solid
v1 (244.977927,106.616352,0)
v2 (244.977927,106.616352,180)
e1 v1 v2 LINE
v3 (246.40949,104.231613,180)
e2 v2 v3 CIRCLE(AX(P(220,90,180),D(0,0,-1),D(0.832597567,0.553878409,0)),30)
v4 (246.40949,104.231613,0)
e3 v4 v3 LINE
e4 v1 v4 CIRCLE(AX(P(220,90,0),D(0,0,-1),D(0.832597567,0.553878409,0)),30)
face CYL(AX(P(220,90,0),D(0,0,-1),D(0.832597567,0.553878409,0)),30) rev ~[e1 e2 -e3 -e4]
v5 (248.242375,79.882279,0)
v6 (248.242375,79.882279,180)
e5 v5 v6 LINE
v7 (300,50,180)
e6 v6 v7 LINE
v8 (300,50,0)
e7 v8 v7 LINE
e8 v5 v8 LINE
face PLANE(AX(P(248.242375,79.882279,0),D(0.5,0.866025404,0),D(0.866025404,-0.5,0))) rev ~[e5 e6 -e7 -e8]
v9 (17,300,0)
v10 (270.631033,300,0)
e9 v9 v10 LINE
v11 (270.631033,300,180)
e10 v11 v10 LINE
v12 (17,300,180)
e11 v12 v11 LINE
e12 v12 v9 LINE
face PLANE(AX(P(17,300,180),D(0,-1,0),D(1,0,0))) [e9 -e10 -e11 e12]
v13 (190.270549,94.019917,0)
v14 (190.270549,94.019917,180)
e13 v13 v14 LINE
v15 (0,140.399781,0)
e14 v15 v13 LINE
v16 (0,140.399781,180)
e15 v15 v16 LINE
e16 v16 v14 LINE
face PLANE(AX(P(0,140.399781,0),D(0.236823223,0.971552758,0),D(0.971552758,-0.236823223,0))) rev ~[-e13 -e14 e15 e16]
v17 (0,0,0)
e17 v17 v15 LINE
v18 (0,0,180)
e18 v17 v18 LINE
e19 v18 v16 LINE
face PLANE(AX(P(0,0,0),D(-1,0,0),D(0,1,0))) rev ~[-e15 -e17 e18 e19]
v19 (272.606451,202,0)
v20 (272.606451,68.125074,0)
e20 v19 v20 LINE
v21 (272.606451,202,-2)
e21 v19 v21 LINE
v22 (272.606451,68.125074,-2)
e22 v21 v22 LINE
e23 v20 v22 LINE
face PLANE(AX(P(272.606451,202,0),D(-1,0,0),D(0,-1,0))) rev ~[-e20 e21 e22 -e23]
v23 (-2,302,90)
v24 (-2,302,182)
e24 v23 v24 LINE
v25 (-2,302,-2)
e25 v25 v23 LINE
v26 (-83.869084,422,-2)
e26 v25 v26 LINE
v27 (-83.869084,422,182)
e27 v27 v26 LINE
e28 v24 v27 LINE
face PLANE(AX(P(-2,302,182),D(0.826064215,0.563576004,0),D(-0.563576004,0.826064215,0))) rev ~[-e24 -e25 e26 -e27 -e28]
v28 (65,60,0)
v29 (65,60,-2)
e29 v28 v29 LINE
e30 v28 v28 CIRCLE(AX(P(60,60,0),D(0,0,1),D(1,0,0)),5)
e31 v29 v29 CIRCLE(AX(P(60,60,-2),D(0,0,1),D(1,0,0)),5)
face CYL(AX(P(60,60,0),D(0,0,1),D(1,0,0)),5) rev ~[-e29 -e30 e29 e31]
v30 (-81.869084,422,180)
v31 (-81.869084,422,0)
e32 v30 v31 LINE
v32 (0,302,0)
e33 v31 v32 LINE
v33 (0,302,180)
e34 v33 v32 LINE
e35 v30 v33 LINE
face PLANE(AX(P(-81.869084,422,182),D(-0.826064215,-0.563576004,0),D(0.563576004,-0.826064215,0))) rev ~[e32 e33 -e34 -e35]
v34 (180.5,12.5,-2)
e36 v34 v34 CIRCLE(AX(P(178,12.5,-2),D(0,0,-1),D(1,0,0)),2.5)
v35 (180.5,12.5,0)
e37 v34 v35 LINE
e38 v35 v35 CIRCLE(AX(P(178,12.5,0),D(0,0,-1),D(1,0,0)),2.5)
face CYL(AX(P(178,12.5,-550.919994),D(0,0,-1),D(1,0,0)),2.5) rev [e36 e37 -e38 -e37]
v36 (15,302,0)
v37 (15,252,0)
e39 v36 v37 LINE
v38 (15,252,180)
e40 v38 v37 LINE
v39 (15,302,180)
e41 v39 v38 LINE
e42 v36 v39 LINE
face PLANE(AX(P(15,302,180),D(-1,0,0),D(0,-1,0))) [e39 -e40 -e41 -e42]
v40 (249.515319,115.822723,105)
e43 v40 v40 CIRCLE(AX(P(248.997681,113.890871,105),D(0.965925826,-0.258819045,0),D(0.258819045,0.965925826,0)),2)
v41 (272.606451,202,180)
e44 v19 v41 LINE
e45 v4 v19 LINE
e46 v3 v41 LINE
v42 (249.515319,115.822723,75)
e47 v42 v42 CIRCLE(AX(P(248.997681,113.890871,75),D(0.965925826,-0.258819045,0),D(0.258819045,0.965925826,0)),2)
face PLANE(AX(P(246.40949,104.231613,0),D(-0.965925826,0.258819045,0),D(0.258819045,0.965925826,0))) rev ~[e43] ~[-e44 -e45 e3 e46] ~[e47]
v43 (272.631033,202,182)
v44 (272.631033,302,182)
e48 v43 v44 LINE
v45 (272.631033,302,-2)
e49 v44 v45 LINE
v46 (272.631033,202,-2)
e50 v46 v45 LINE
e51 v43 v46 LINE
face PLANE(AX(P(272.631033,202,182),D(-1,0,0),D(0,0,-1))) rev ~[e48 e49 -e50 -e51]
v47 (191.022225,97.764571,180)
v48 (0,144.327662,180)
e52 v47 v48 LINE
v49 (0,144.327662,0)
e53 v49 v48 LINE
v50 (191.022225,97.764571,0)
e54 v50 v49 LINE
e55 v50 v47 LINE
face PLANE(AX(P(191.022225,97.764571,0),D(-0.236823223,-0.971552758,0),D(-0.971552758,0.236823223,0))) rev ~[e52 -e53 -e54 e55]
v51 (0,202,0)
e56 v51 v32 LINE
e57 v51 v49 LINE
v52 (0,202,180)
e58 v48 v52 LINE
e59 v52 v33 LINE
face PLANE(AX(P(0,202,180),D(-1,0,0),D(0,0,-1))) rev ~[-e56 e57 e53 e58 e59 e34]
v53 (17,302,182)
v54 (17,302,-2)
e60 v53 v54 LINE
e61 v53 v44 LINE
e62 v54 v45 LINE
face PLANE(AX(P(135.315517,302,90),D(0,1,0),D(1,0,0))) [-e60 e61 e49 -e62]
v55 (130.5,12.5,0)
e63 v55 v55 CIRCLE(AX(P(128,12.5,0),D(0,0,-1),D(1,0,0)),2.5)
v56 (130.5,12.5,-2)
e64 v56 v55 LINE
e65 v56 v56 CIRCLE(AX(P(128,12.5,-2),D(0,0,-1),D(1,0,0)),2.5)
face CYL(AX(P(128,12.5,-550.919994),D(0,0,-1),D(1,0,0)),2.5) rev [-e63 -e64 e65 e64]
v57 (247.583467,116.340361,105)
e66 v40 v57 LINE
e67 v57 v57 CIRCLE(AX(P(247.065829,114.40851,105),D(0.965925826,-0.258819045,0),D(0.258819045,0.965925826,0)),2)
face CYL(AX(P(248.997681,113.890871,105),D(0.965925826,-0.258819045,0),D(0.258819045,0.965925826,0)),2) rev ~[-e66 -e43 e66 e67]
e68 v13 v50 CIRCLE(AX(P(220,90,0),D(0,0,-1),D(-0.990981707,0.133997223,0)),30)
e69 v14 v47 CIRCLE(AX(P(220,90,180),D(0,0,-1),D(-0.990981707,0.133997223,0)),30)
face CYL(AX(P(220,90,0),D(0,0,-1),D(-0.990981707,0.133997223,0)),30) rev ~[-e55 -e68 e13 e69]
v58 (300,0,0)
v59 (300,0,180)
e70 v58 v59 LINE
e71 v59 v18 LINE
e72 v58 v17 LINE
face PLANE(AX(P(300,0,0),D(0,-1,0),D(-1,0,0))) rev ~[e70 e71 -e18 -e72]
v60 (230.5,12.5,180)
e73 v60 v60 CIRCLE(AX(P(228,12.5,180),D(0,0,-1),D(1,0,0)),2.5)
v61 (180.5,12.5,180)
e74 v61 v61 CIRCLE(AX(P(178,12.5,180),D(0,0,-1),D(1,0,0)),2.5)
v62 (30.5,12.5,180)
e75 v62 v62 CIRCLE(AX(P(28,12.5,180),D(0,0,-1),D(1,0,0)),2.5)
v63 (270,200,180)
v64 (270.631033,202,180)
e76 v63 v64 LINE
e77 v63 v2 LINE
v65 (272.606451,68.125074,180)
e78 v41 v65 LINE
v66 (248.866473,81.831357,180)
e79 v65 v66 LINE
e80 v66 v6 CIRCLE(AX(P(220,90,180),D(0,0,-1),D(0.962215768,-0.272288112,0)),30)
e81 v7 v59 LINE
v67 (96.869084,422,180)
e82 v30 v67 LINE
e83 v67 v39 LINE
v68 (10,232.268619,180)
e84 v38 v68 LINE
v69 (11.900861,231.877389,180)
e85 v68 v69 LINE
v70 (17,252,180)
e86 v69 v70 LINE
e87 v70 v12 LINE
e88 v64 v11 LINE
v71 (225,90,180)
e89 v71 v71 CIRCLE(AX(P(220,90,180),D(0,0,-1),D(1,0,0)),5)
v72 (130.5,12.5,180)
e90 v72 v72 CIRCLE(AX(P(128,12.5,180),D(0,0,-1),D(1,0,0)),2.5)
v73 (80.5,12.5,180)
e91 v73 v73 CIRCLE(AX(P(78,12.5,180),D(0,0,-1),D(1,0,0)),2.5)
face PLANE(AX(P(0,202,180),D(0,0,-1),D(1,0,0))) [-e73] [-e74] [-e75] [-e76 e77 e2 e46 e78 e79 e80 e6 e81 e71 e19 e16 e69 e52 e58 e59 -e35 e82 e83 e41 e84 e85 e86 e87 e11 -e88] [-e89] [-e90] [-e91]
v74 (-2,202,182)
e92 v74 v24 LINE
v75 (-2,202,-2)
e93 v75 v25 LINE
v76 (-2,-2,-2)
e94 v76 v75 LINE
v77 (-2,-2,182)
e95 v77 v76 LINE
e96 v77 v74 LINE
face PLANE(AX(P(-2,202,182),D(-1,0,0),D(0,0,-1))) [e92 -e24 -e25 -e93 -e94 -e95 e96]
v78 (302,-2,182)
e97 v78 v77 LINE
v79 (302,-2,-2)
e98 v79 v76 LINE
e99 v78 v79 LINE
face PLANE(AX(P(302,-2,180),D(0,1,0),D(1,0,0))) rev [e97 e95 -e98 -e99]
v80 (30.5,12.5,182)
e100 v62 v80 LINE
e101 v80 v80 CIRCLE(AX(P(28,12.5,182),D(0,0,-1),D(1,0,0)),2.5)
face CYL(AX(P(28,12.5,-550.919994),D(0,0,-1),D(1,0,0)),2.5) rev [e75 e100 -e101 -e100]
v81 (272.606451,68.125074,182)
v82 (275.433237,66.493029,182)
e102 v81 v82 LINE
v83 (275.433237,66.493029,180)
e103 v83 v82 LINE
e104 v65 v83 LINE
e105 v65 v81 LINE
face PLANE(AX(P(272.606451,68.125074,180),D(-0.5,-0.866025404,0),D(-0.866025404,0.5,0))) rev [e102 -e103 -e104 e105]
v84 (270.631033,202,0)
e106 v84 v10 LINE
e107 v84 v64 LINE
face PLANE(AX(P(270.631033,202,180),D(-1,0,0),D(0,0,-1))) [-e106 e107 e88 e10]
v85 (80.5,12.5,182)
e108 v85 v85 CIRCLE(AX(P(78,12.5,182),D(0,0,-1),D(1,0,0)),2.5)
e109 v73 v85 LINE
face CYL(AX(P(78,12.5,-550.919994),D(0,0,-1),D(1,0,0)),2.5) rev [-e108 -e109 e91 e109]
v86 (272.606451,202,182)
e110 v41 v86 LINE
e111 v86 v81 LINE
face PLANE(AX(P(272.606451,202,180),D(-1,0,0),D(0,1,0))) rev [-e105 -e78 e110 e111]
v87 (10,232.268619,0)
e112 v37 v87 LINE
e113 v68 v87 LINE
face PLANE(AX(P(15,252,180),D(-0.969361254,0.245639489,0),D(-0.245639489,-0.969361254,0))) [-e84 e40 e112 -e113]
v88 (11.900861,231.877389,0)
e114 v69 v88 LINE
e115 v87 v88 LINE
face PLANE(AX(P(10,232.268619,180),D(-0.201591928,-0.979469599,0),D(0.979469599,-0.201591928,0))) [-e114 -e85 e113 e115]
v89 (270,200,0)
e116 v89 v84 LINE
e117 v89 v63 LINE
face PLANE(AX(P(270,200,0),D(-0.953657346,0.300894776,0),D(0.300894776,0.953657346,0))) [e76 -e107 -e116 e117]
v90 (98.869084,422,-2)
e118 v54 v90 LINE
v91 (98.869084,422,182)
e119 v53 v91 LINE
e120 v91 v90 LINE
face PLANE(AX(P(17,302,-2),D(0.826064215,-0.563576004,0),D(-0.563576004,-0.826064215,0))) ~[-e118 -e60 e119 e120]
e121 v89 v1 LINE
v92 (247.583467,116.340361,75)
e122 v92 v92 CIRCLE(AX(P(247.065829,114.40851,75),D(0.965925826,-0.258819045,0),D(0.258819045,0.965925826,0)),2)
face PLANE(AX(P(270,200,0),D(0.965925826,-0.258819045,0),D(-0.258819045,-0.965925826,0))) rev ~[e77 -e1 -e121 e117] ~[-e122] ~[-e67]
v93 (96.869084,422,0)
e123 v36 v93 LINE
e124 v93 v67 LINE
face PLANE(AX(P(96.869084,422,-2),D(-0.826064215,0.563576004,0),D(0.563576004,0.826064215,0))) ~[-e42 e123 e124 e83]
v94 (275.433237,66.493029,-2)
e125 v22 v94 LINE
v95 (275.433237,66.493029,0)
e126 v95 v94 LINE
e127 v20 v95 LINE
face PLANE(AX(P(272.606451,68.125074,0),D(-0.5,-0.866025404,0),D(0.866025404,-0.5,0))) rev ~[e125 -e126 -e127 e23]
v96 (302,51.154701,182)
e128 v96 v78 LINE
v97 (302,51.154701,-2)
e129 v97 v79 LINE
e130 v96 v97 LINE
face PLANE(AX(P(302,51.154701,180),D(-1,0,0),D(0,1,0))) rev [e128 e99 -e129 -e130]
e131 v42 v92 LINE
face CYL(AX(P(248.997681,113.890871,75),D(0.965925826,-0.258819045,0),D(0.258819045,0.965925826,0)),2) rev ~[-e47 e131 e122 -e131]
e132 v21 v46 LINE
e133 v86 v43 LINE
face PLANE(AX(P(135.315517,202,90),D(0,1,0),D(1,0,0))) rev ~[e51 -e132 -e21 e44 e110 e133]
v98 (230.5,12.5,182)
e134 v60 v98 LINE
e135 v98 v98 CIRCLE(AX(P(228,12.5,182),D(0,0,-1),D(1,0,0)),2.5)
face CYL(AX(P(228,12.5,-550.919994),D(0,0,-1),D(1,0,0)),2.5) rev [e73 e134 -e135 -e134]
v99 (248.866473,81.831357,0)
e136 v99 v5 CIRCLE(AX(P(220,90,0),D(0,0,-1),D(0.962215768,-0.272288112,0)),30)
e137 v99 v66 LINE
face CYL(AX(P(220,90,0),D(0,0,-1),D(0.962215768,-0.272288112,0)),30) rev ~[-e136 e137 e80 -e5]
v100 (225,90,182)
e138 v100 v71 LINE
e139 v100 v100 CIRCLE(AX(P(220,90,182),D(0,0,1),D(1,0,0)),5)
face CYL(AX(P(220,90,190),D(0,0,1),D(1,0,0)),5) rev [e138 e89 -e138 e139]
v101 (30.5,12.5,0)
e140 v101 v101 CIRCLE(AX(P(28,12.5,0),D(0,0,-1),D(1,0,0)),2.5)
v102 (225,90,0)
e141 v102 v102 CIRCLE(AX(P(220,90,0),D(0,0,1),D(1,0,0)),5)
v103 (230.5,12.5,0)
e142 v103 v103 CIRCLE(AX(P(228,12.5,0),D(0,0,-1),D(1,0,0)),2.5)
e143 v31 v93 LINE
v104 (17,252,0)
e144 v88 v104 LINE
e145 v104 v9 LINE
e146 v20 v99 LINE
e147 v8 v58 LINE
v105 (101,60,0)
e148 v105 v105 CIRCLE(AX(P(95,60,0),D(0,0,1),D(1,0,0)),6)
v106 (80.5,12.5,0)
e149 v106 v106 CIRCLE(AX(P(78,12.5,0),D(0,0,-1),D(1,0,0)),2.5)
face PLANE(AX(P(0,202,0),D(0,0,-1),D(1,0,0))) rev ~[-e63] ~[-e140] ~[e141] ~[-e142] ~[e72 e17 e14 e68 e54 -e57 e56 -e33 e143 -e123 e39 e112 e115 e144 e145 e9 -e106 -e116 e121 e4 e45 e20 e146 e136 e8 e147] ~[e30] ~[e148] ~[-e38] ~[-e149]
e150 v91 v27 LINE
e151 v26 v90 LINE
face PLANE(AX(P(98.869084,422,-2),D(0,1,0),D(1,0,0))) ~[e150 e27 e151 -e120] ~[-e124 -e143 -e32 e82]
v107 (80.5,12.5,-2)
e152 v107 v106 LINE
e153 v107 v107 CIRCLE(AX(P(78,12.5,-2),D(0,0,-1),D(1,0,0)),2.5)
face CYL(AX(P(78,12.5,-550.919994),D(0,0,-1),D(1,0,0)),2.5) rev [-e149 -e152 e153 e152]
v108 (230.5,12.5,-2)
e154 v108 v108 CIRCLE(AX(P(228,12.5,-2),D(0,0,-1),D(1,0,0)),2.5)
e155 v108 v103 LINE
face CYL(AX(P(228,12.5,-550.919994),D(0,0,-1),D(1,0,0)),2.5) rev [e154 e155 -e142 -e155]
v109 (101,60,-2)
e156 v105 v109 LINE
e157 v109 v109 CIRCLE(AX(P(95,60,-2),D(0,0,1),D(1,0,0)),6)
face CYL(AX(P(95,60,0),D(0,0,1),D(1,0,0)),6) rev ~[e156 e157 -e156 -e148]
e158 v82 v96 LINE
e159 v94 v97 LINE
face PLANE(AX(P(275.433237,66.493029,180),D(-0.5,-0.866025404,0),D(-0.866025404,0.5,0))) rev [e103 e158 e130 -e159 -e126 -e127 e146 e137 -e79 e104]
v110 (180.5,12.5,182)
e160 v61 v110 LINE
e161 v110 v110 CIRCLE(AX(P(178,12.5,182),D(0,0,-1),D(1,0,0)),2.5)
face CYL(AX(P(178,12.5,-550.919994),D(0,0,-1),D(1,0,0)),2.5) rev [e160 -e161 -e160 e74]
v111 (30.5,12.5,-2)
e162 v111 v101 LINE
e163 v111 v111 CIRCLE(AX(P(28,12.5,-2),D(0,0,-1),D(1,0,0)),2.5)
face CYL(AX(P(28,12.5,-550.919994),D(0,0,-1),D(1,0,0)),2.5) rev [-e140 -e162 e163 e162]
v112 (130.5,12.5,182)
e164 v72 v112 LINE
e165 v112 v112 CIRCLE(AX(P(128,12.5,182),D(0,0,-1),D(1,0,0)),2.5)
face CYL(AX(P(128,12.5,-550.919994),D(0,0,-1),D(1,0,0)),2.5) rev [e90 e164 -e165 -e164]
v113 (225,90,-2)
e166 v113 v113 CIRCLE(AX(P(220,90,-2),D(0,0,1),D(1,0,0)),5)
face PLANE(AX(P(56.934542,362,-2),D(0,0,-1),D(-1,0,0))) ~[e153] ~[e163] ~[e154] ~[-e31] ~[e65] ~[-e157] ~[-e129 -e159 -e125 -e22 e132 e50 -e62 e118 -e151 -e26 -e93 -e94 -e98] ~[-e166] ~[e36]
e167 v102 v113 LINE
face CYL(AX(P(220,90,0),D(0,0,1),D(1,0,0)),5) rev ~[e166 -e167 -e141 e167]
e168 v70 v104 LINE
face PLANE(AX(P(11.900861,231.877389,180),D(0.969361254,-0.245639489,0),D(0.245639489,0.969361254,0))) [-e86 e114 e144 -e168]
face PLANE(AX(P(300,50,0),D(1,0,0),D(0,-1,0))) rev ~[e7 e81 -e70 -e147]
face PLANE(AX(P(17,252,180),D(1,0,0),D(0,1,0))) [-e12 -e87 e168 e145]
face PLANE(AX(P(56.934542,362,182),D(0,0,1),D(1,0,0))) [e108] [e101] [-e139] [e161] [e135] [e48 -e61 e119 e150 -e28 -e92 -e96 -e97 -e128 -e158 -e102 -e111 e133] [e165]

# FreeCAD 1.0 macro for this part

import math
import FreeCAD as App
import Part
import Sketcher
from FreeCAD import Vector
Q = App.Units.Quantity


def add_polygon(sketch, points):
    """Adds a closed chain of lines whose ends are joined by coincident constraints."""
    first, n = sketch.GeometryCount, len(points)
    for a, b in zip(points, points[1:] + points[:1]):
        sketch.addGeometry(Part.LineSegment(App.Vector(*a, 0), App.Vector(*b, 0)), False)
    for i in range(n):
        sketch.addConstraint(Sketcher.Constraint("Coincident", first + i, 2, first + (i + 1) % n, 1))

doc = App.newDocument("Part")
params = doc.addObject("Spreadsheet::Sheet", "Params")
for row, (alias, value) in enumerate([
    ("sketch1_radius", "30 mm"),
    ("sketch1_width", "300 mm"),
    ("sketch1_width2", "270 mm"),
    ("sketch1_width3", "304 mm"),
    ("sketch1_height", "200 mm"),
    ("pad1_length", "180 mm"),
    ("sketch2_width", "304 mm"),
    ("sketch2_height", "204 mm"),
    ("pad2_length", "2 mm"),
    ("sketch3_radius", "30 mm"),
    ("pad3_length", "180 mm"),
    ("sketch4_diameter", "10 mm"),
    ("sketch4_diameter2", "12 mm"),
    ("pocket1_length", "6 mm"),
    ("pocket1_length2", "14 mm"),
    ("sketch5_width", "270 mm"),
    ("sketch5_height", "2 mm"),
    ("pocket2_length", "180 mm"),
    ("sketch6_height", "184 mm"),
    ("sketch6_height2", "180 mm"),
    ("pad4_length", "100 mm"),
    ("sketch7_width", "2 mm"),
    ("pad5_length", "92 mm"),
    ("sketch8_width", "19 mm"),
    ("pad6_length", "2 mm"),
    ("sketch9_width", "304 mm"),
    ("sketch9_height", "204 mm"),
    ("pad7_length", "2 mm"),
    ("sketch10_width", "304 mm"),
    ("sketch10_height", "204 mm"),
    ("pad8_length", "2 mm"),
    ("sketch11_height", "50 mm"),
    ("sketch11_height2", "2 mm"),
    ("pad9_length", "180 mm"),
    ("sketch12_diameter", "10 mm"),
    ("sketch12_diameter2", "12 mm"),
    ("pocket3_length", "10 mm"),
    ("sketch13_diameter", "10 mm"),
    ("pocket4_length", "10 mm"),
    ("sketch14_diameter", "4 mm"),
    ("pocket5_length", "10 mm"),
    ("sketch15_diameter", "5 mm"),
], start=1):
    params.set(f"A{row}", alias)
    params.set(f"B{row}", "=" + value)
    params.setAlias(f"B{row}", alias)

body = doc.addObject("PartDesign::Body", "Body")

sketch1 = doc.addObject("Sketcher::SketchObject", "Sketch")
body.addObject(sketch1)
sketch1.AttachmentSupport = (doc.XY_Plane, [""])
sketch1.MapMode = "FlatFace"
sketch1.addGeometry(Part.LineSegment(Vector(300, 0, 0), Vector(0, 0, 0)), False)
sketch1.addGeometry(Part.LineSegment(Vector(0, 0, 0), Vector(0, 200, 0)), False)
sketch1.addGeometry(Part.LineSegment(Vector(0, 200, 0), Vector(270, 200, 0)), False)
sketch1.addGeometry(Part.LineSegment(Vector(270, 200, 0), Vector(245, 106.6, 0)), False)
sketch1.addGeometry(Part.ArcOfCircle(Part.Circle(Vector(220, 90, 0), Vector(0, 0, 1), 30), math.radians(28.32), math.radians(33.63)), False)
sketch1.addGeometry(Part.LineSegment(Vector(246.4, 104.2, 0), Vector(272.6, 202, 0)), False)
sketch1.addGeometry(Part.LineSegment(Vector(272.6, 202, 0), Vector(-2, 202, 0)), False)
sketch1.addGeometry(Part.LineSegment(Vector(-2, 202, 0), Vector(-2, -2, 0)), False)
sketch1.addGeometry(Part.LineSegment(Vector(-2, -2, 0), Vector(302, -2, 0)), False)
sketch1.addGeometry(Part.LineSegment(Vector(302, -2, 0), Vector(302, 51.2, 0)), False)
sketch1.addGeometry(Part.LineSegment(Vector(302, 51.2, 0), Vector(248.9, 81.8, 0)), False)
sketch1.addGeometry(Part.ArcOfCircle(Part.Circle(Vector(220, 90, 0), Vector(0, 0, 1), 30), math.radians(-19.71), math.radians(-15.8)), False)
sketch1.addGeometry(Part.LineSegment(Vector(248.2, 79.9, 0), Vector(300, 50, 0)), False)
sketch1.addGeometry(Part.LineSegment(Vector(300, 50, 0), Vector(300, 0, 0)), False)
sketch1.addConstraint(Sketcher.Constraint("Coincident", 0, 2, 1, 1))
sketch1.addConstraint(Sketcher.Constraint("Coincident", 1, 2, 2, 1))
sketch1.addConstraint(Sketcher.Constraint("Coincident", 2, 2, 3, 1))
sketch1.addConstraint(Sketcher.Constraint("Coincident", 3, 2, 4, 2))
sketch1.addConstraint(Sketcher.Constraint("Coincident", 4, 1, 5, 1))
sketch1.addConstraint(Sketcher.Constraint("Coincident", 5, 2, 6, 1))
sketch1.addConstraint(Sketcher.Constraint("Coincident", 6, 2, 7, 1))
sketch1.addConstraint(Sketcher.Constraint("Coincident", 7, 2, 8, 1))
sketch1.addConstraint(Sketcher.Constraint("Coincident", 8, 2, 9, 1))
sketch1.addConstraint(Sketcher.Constraint("Coincident", 9, 2, 10, 1))
sketch1.addConstraint(Sketcher.Constraint("Coincident", 10, 2, 11, 2))
sketch1.addConstraint(Sketcher.Constraint("Coincident", 11, 1, 12, 1))
sketch1.addConstraint(Sketcher.Constraint("Coincident", 12, 2, 13, 1))
sketch1.addConstraint(Sketcher.Constraint("Coincident", 13, 2, 0, 1))
sketch1.addConstraint(Sketcher.Constraint("Horizontal", 0))
sketch1.addConstraint(Sketcher.Constraint("Vertical", 1))
sketch1.addConstraint(Sketcher.Constraint("Horizontal", 2))
sketch1.addConstraint(Sketcher.Constraint("Horizontal", 6))
sketch1.addConstraint(Sketcher.Constraint("Vertical", 7))
sketch1.addConstraint(Sketcher.Constraint("Horizontal", 8))
sketch1.addConstraint(Sketcher.Constraint("Vertical", 9))
sketch1.addConstraint(Sketcher.Constraint("Vertical", 13))
sketch1.addConstraint(Sketcher.Constraint("Coincident", 0, 2, -1, 1))
sketch1.addConstraint(Sketcher.Constraint("Coincident", 11, 3, 4, 3))
sketch1.addConstraint(Sketcher.Constraint("Equal", 4, 11))
sketch1.addConstraint(Sketcher.Constraint("Parallel", 3, 5))
sketch1.addConstraint(Sketcher.Constraint("Parallel", 10, 12))
sketch1.addConstraint(Sketcher.Constraint("Radius", 4, 30.0))
sketch1.addConstraint(Sketcher.Constraint("DistanceX", 0, 2, 0, 1, 300.0))
sketch1.addConstraint(Sketcher.Constraint("DistanceX", 2, 1, 2, 2, 270.0))
sketch1.addConstraint(Sketcher.Constraint("DistanceX", 8, 1, 8, 2, 304.0))
sketch1.addConstraint(Sketcher.Constraint("DistanceY", 1, 1, 1, 2, 200.0))
sketch1.addConstraint(Sketcher.Constraint("DistanceY", 7, 2, 7, 1, 204.0))
sketch1.addConstraint(Sketcher.Constraint("DistanceY", 13, 2, 13, 1, 50.0))
sketch1.addConstraint(Sketcher.Constraint("Angle", 3, Q("-105 deg")))
sketch1.addConstraint(Sketcher.Constraint("Angle", 10, Q("150 deg")))
sketch1.addConstraint(Sketcher.Constraint("DistanceX", -1, 1, 4, 3, 220.0))
sketch1.addConstraint(Sketcher.Constraint("DistanceY", -1, 1, 4, 3, 90.0))
sketch1.addConstraint(Sketcher.Constraint("DistanceY", -1, 1, 5, 2, 202.0))
sketch1.addConstraint(Sketcher.Constraint("DistanceX", 6, 2, -1, 1, 2.0))
sketch1.addConstraint(Sketcher.Constraint("DistanceY", 9, 1, 9, 2, 53.154701))
sketch1.addConstraint(Sketcher.Constraint("DistanceX", 6, 2, 6, 1, 274.606451))
sketch1.setExpression("Constraints[27]", "Params.sketch1_radius")
sketch1.setExpression("Constraints[28]", "Params.sketch1_width")
sketch1.setExpression("Constraints[29]", "Params.sketch1_width2")
sketch1.setExpression("Constraints[30]", "Params.sketch1_width3")
sketch1.setExpression("Constraints[31]", "Params.sketch1_height")
pad1 = doc.addObject("PartDesign::Pad", "Pad")
body.addObject(pad1)
pad1.Profile = sketch1
pad1.setExpression("Length", "Params.pad1_length")

sketch2 = doc.addObject("Sketcher::SketchObject", "Sketch001")
body.addObject(sketch2)
sketch2.AttachmentSupport = (doc.XY_Plane, [""])
sketch2.MapMode = "FlatFace"
add_polygon(sketch2, [(272.6, 68.1), (275.4, 66.5), (302, 51.2), (302, -2), (-2, -2), (-2, 202), (272.6, 202)])
sketch2.addConstraint(Sketcher.Constraint("Vertical", 2))
sketch2.addConstraint(Sketcher.Constraint("Horizontal", 3))
sketch2.addConstraint(Sketcher.Constraint("Vertical", 4))
sketch2.addConstraint(Sketcher.Constraint("Horizontal", 5))
sketch2.addConstraint(Sketcher.Constraint("Vertical", 6))
sketch2.addConstraint(Sketcher.Constraint("Parallel", 0, 1))
sketch2.addConstraint(Sketcher.Constraint("DistanceX", 3, 2, 3, 1, 304.0))
sketch2.addConstraint(Sketcher.Constraint("DistanceY", 4, 1, 4, 2, 204.0))
sketch2.addConstraint(Sketcher.Constraint("Angle", 0, Q("-30 deg")))
sketch2.addConstraint(Sketcher.Constraint("DistanceX", -1, 1, 1, 2, 302.0))
sketch2.addConstraint(Sketcher.Constraint("DistanceY", 2, 2, -1, 1, 2.0))
sketch2.addConstraint(Sketcher.Constraint("DistanceY", 2, 2, 2, 1, 53.154701))
sketch2.addConstraint(Sketcher.Constraint("DistanceX", 5, 1, 5, 2, 274.606451))
sketch2.addConstraint(Sketcher.Constraint("Distance", 0, 3.264091))
sketch2.setExpression("Constraints[13]", "Params.sketch2_width")
sketch2.setExpression("Constraints[14]", "Params.sketch2_height")
pad2 = doc.addObject("PartDesign::Pad", "Pad001")
body.addObject(pad2)
pad2.Profile = sketch2
pad2.setExpression("Length", "Params.pad2_length")
pad2.Reversed = True
doc.recompute()

datumplane = doc.addObject("PartDesign::Plane", "DatumPlane")
body.addObject(datumplane)
datumplane.AttachmentSupport = (doc.XY_Plane, [""])
datumplane.MapMode = "FlatFace"
datumplane.AttachmentOffset = App.Placement(Vector(0, 0, 90), App.Rotation())
mirrored = doc.addObject("PartDesign::Mirrored", "Mirrored")
body.addObject(mirrored)
mirrored.Originals = [pad2]
mirrored.MirrorPlane = (datumplane, [""])
body.Tip = mirrored

sketch3 = doc.addObject("Sketcher::SketchObject", "Sketch002")
body.addObject(sketch3)
sketch3.AttachmentSupport = (doc.XY_Plane, [""])
sketch3.MapMode = "FlatFace"
sketch3.addGeometry(Part.LineSegment(Vector(191, 97.8, 0), Vector(0, 144.3, 0)), False)
sketch3.addGeometry(Part.LineSegment(Vector(0, 144.3, 0), Vector(0, 140.4, 0)), False)
sketch3.addGeometry(Part.LineSegment(Vector(0, 140.4, 0), Vector(190.3, 94, 0)), False)
sketch3.addGeometry(Part.ArcOfCircle(Part.Circle(Vector(220, 90, 0), Vector(0, 0, 1), 30), math.radians(165), math.radians(172.3)), False)
sketch3.addConstraint(Sketcher.Constraint("Coincident", 0, 2, 1, 1))
sketch3.addConstraint(Sketcher.Constraint("Coincident", 1, 2, 2, 1))
sketch3.addConstraint(Sketcher.Constraint("Coincident", 2, 2, 3, 2))
sketch3.addConstraint(Sketcher.Constraint("Coincident", 3, 1, 0, 1))
sketch3.addConstraint(Sketcher.Constraint("Vertical", 1))
sketch3.addConstraint(Sketcher.Constraint("PointOnObject", 0, 2, -2))
sketch3.addConstraint(Sketcher.Constraint("Parallel", 0, 2))
sketch3.addConstraint(Sketcher.Constraint("Radius", 3, 30.0))
sketch3.addConstraint(Sketcher.Constraint("DistanceX", -1, 1, 3, 3, 220.0))
sketch3.addConstraint(Sketcher.Constraint("DistanceY", -1, 1, 3, 3, 90.0))
sketch3.addConstraint(Sketcher.Constraint("DistanceY", 1, 2, 1, 1, 3.927881))
sketch3.addConstraint(Sketcher.Constraint("Distance", 0, 196.615391))
sketch3.addConstraint(Sketcher.Constraint("DistanceY", -1, 1, 0, 2, 144.327662))
sketch3.setExpression("Constraints[7]", "Params.sketch3_radius")
pad3 = doc.addObject("PartDesign::Pad", "Pad002")
body.addObject(pad3)
pad3.Profile = sketch3
pad3.setExpression("Length", "Params.pad3_length")

sketch4 = doc.addObject("Sketcher::SketchObject", "Sketch003")
body.addObject(sketch4)
sketch4.AttachmentSupport = (doc.XY_Plane, [""])
sketch4.MapMode = "FlatFace"
sketch4.addGeometry(Part.Circle(Vector(60, 60, 0), Vector(0, 0, 1), 5), False)
sketch4.addGeometry(Part.Circle(Vector(95, 60, 0), Vector(0, 0, 1), 6), False)
sketch4.addConstraint(Sketcher.Constraint("Horizontal", 0, 3, 1, 3))
sketch4.addConstraint(Sketcher.Constraint("Diameter", 0, 10.0))
sketch4.addConstraint(Sketcher.Constraint("Diameter", 1, 12.0))
sketch4.addConstraint(Sketcher.Constraint("DistanceX", -1, 1, 0, 3, 60.0))
sketch4.addConstraint(Sketcher.Constraint("DistanceY", -1, 1, 0, 3, 60.0))
sketch4.addConstraint(Sketcher.Constraint("DistanceX", -1, 1, 1, 3, 95.0))
sketch4.setExpression("Constraints[1]", "Params.sketch4_diameter")
sketch4.setExpression("Constraints[2]", "Params.sketch4_diameter2")
pocket1 = doc.addObject("PartDesign::Pocket", "Pocket")
body.addObject(pocket1)
pocket1.Profile = sketch4
pocket1.Type = "TwoLengths"
pocket1.setExpression("Length", "Params.pocket1_length")
pocket1.setExpression("Length2", "Params.pocket1_length2")
pocket1.Reversed = True

sketch5 = doc.addObject("Sketcher::SketchObject", "Sketch004")
body.addObject(sketch5)
sketch5.AttachmentSupport = (doc.XY_Plane, [""])
sketch5.MapMode = "FlatFace"
add_polygon(sketch5, [(0, 200), (270, 200), (270.6, 202), (0, 202)])
sketch5.addConstraint(Sketcher.Constraint("Horizontal", 0))
sketch5.addConstraint(Sketcher.Constraint("Horizontal", 2))
sketch5.addConstraint(Sketcher.Constraint("Vertical", 3))
sketch5.addConstraint(Sketcher.Constraint("PointOnObject", 2, 2, -2))
sketch5.addConstraint(Sketcher.Constraint("DistanceX", 0, 1, 0, 2, 270.0))
sketch5.addConstraint(Sketcher.Constraint("DistanceY", 3, 2, 3, 1, 2.0))
sketch5.addConstraint(Sketcher.Constraint("DistanceY", -1, 1, 0, 2, 200.0))
sketch5.addConstraint(Sketcher.Constraint("Distance", 1, 2.097189))
sketch5.setExpression("Constraints[8]", "Params.sketch5_width")
sketch5.setExpression("Constraints[9]", "Params.sketch5_height")
pocket2 = doc.addObject("PartDesign::Pocket", "Pocket001")
body.addObject(pocket2)
pocket2.Profile = sketch5
pocket2.setExpression("Length", "Params.pocket2_length")
pocket2.Reversed = True

sketch6 = doc.addObject("Sketcher::SketchObject", "Sketch005")
body.addObject(sketch6)
sketch6.AttachmentSupport = (doc.XZ_Plane, [""])
sketch6.MapMode = "FlatFace"
sketch6.AttachmentOffset = App.Placement(Vector(0, 0, -202), App.Rotation())
add_polygon(sketch6, [(-2, -2), (-2, 182), (273, 182), (273, -2)])
add_polygon(sketch6, [(271, 180), (0, 180), (0, 0), (271, 0)])
sketch6.addConstraint(Sketcher.Constraint("Vertical", 0))
sketch6.addConstraint(Sketcher.Constraint("Horizontal", 1))
sketch6.addConstraint(Sketcher.Constraint("Vertical", 2))
sketch6.addConstraint(Sketcher.Constraint("Horizontal", 3))
sketch6.addConstraint(Sketcher.Constraint("Horizontal", 4))
sketch6.addConstraint(Sketcher.Constraint("Vertical", 5))
sketch6.addConstraint(Sketcher.Constraint("Horizontal", 6))
sketch6.addConstraint(Sketcher.Constraint("Vertical", 7))
sketch6.addConstraint(Sketcher.Constraint("Coincident", 5, 2, -1, 1))
sketch6.addConstraint(Sketcher.Constraint("DistanceY", 0, 1, 0, 2, 184.0))
sketch6.addConstraint(Sketcher.Constraint("DistanceY", 5, 2, 5, 1, 180.0))
sketch6.addConstraint(Sketcher.Constraint("DistanceX", 0, 2, -1, 1, 2.0))
sketch6.addConstraint(Sketcher.Constraint("DistanceY", -1, 1, 0, 2, 182.0))
sketch6.addConstraint(Sketcher.Constraint("DistanceX", 6, 2, 2, 2, 2.0))
sketch6.addConstraint(Sketcher.Constraint("DistanceX", 1, 1, 1, 2, 274.631033))
sketch6.setExpression("Constraints[17]", "Params.sketch6_height")
sketch6.setExpression("Constraints[18]", "Params.sketch6_height2")
pad4 = doc.addObject("PartDesign::Pad", "Pad003")
body.addObject(pad4)
pad4.Profile = sketch6
pad4.setExpression("Length", "Params.pad4_length")
pad4.Reversed = True

sketch7 = doc.addObject("Sketcher::SketchObject", "Sketch006")
body.addObject(sketch7)
sketch7.AttachmentSupport = (doc.XY_Plane, [""])
sketch7.MapMode = "FlatFace"
sketch7.AttachmentOffset = App.Placement(Vector(0, 0, 182), App.Rotation())
add_polygon(sketch7, [(96.9, 422), (98.9, 422), (17, 302), (15, 302)])
add_polygon(sketch7, [(-83.9, 422), (-81.9, 422), (0, 302), (-2, 302)])
sketch7.addConstraint(Sketcher.Constraint("Horizontal", 0))
sketch7.addConstraint(Sketcher.Constraint("Horizontal", 2))
sketch7.addConstraint(Sketcher.Constraint("Horizontal", 4))
sketch7.addConstraint(Sketcher.Constraint("Horizontal", 6))
sketch7.addConstraint(Sketcher.Constraint("PointOnObject", 5, 2, -2))
sketch7.addConstraint(Sketcher.Constraint("Parallel", 1, 3))
sketch7.addConstraint(Sketcher.Constraint("Parallel", 5, 7))
sketch7.addConstraint(Sketcher.Constraint("Horizontal", 3, 2, 4, 2))
sketch7.addConstraint(Sketcher.Constraint("Horizontal", 2, 2, 5, 2))
sketch7.addConstraint(Sketcher.Constraint("Equal", 2, 4))
sketch7.addConstraint(Sketcher.Constraint("Equal", 3, 5))
sketch7.addConstraint(Sketcher.Constraint("DistanceX", 0, 1, 0, 2, 2.0))
sketch7.addConstraint(Sketcher.Constraint("DistanceY", -1, 1, 0, 2, 422.0))
sketch7.addConstraint(Sketcher.Constraint("DistanceX", -1, 1, 1, 2, 17.0))
sketch7.addConstraint(Sketcher.Constraint("DistanceY", -1, 1, 1, 2, 302.0))
sketch7.addConstraint(Sketcher.Constraint("Distance", 1, 145.267157))
sketch7.setExpression("Constraints[19]", "Params.sketch7_width")
pad5 = doc.addObject("PartDesign::Pad", "Pad004")
body.addObject(pad5)
pad5.Profile = sketch7
pad5.setExpression("Length", "Params.pad5_length")
pad5.Reversed = True

sketch8 = doc.addObject("Sketcher::SketchObject", "Sketch007")
body.addObject(sketch8)
sketch8.AttachmentSupport = (doc.XY_Plane, [""])
sketch8.MapMode = "FlatFace"
sketch8.AttachmentOffset = App.Placement(Vector(0, 0, 182), App.Rotation())
add_polygon(sketch8, [(99, 422), (-84, 422), (-2, 302), (17, 302)])
sketch8.addConstraint(Sketcher.Constraint("Horizontal", 0))
sketch8.addConstraint(Sketcher.Constraint("Horizontal", 2))
sketch8.addConstraint(Sketcher.Constraint("Equal", 1, 3))
sketch8.addConstraint(Sketcher.Constraint("DistanceX", 2, 1, 2, 2, 19.0))
sketch8.addConstraint(Sketcher.Constraint("DistanceY", -1, 1, 0, 2, 422.0))
sketch8.addConstraint(Sketcher.Constraint("DistanceX", 1, 2, -1, 1, 2.0))
sketch8.addConstraint(Sketcher.Constraint("DistanceY", -1, 1, 1, 2, 302.0))
sketch8.addConstraint(Sketcher.Constraint("DistanceX", 0, 2, 0, 1, 182.738168))
sketch8.setExpression("Constraints[7]", "Params.sketch8_width")
pad6 = doc.addObject("PartDesign::Pad", "Pad005")
body.addObject(pad6)
pad6.Profile = sketch8
pad6.setExpression("Length", "Params.pad6_length")
pad6.Reversed = True
doc.recompute()

datumplane2 = doc.addObject("PartDesign::Plane", "DatumPlane001")
body.addObject(datumplane2)
datumplane2.AttachmentSupport = (doc.XY_Plane, [""])
datumplane2.MapMode = "FlatFace"
datumplane2.AttachmentOffset = App.Placement(Vector(0, 0, 90), App.Rotation())
mirrored2 = doc.addObject("PartDesign::Mirrored", "Mirrored001")
body.addObject(mirrored2)
mirrored2.Originals = [pad5]
mirrored2.MirrorPlane = (datumplane2, [""])
body.Tip = mirrored2

sketch9 = doc.addObject("Sketcher::SketchObject", "Sketch008")
body.addObject(sketch9)
sketch9.AttachmentSupport = (doc.XY_Plane, [""])
sketch9.MapMode = "FlatFace"
add_polygon(sketch9, [(272.6, 68.1), (275.4, 66.5), (302, 51.2), (302, -2), (-2, -2), (-2, 202), (272.6, 202)])
sketch9.addConstraint(Sketcher.Constraint("Vertical", 2))
sketch9.addConstraint(Sketcher.Constraint("Horizontal", 3))
sketch9.addConstraint(Sketcher.Constraint("Vertical", 4))
sketch9.addConstraint(Sketcher.Constraint("Horizontal", 5))
sketch9.addConstraint(Sketcher.Constraint("Vertical", 6))
sketch9.addConstraint(Sketcher.Constraint("Parallel", 0, 1))
sketch9.addConstraint(Sketcher.Constraint("DistanceX", 3, 2, 3, 1, 304.0))
sketch9.addConstraint(Sketcher.Constraint("DistanceY", 4, 1, 4, 2, 204.0))
sketch9.addConstraint(Sketcher.Constraint("Angle", 0, Q("-30 deg")))
sketch9.addConstraint(Sketcher.Constraint("DistanceX", -1, 1, 1, 2, 302.0))
sketch9.addConstraint(Sketcher.Constraint("DistanceY", 2, 2, -1, 1, 2.0))
sketch9.addConstraint(Sketcher.Constraint("DistanceY", 2, 2, 2, 1, 53.154701))
sketch9.addConstraint(Sketcher.Constraint("DistanceX", 5, 1, 5, 2, 274.606451))
sketch9.addConstraint(Sketcher.Constraint("Distance", 0, 3.264091))
sketch9.setExpression("Constraints[13]", "Params.sketch9_width")
sketch9.setExpression("Constraints[14]", "Params.sketch9_height")
pad7 = doc.addObject("PartDesign::Pad", "Pad006")
body.addObject(pad7)
pad7.Profile = sketch9
pad7.setExpression("Length", "Params.pad7_length")
pad7.Reversed = True

sketch10 = doc.addObject("Sketcher::SketchObject", "Sketch009")
body.addObject(sketch10)
sketch10.AttachmentSupport = (doc.XY_Plane, [""])
sketch10.MapMode = "FlatFace"
sketch10.AttachmentOffset = App.Placement(Vector(0, 0, 180), App.Rotation())
add_polygon(sketch10, [(275.4, 66.5), (272.6, 68.1), (272.6, 202), (-2, 202), (-2, -2), (302, -2), (302, 51.2)])
sketch10.addConstraint(Sketcher.Constraint("Vertical", 1))
sketch10.addConstraint(Sketcher.Constraint("Horizontal", 2))
sketch10.addConstraint(Sketcher.Constraint("Vertical", 3))
sketch10.addConstraint(Sketcher.Constraint("Horizontal", 4))
sketch10.addConstraint(Sketcher.Constraint("Vertical", 5))
sketch10.addConstraint(Sketcher.Constraint("Parallel", 0, 6))
sketch10.addConstraint(Sketcher.Constraint("DistanceX", 4, 1, 4, 2, 304.0))
sketch10.addConstraint(Sketcher.Constraint("DistanceY", 3, 2, 3, 1, 204.0))
sketch10.addConstraint(Sketcher.Constraint("Angle", 0, Q("150 deg")))
sketch10.addConstraint(Sketcher.Constraint("DistanceY", -1, 1, 1, 2, 202.0))
sketch10.addConstraint(Sketcher.Constraint("DistanceX", 2, 2, -1, 1, 2.0))
sketch10.addConstraint(Sketcher.Constraint("DistanceY", 5, 1, 5, 2, 53.154701))
sketch10.addConstraint(Sketcher.Constraint("DistanceX", 2, 2, 2, 1, 274.606451))
sketch10.addConstraint(Sketcher.Constraint("Distance", 0, 3.264091))
sketch10.setExpression("Constraints[13]", "Params.sketch10_width")
sketch10.setExpression("Constraints[14]", "Params.sketch10_height")
pad8 = doc.addObject("PartDesign::Pad", "Pad007")
body.addObject(pad8)
pad8.Profile = sketch10
pad8.setExpression("Length", "Params.pad8_length")
doc.recompute()

datumplane3 = doc.addObject("PartDesign::Plane", "DatumPlane002")
body.addObject(datumplane3)
datumplane3.AttachmentSupport = (doc.XY_Plane, [""])
datumplane3.MapMode = "FlatFace"
datumplane3.AttachmentOffset = App.Placement(Vector(0, 0, 90), App.Rotation())
mirrored3 = doc.addObject("PartDesign::Mirrored", "Mirrored002")
body.addObject(mirrored3)
mirrored3.Originals = [pad6]
mirrored3.MirrorPlane = (datumplane3, [""])
body.Tip = mirrored3

sketch11 = doc.addObject("Sketcher::SketchObject", "Sketch010")
body.addObject(sketch11)
sketch11.AttachmentSupport = (doc.XY_Plane, [""])
sketch11.MapMode = "FlatFace"
sketch11.AttachmentOffset = App.Placement(Vector(0, 0, 180), App.Rotation())
add_polygon(sketch11, [(15, 252), (15, 302), (270.6, 302), (270.6, 300), (17, 300), (17, 252), (11.9, 231.9), (10, 232.3)])
sketch11.addConstraint(Sketcher.Constraint("Vertical", 0))
sketch11.addConstraint(Sketcher.Constraint("Horizontal", 1))
sketch11.addConstraint(Sketcher.Constraint("Vertical", 2))
sketch11.addConstraint(Sketcher.Constraint("Horizontal", 3))
sketch11.addConstraint(Sketcher.Constraint("Vertical", 4))
sketch11.addConstraint(Sketcher.Constraint("Parallel", 5, 7))
sketch11.addConstraint(Sketcher.Constraint("Horizontal", 4, 2, 7, 2))
sketch11.addConstraint(Sketcher.Constraint("DistanceY", 0, 1, 0, 2, 50.0))
sketch11.addConstraint(Sketcher.Constraint("DistanceY", 2, 2, 2, 1, 2.0))
sketch11.addConstraint(Sketcher.Constraint("DistanceX", -1, 1, 0, 2, 15.0))
sketch11.addConstraint(Sketcher.Constraint("DistanceY", -1, 1, 0, 2, 302.0))
sketch11.addConstraint(Sketcher.Constraint("DistanceX", -1, 1, 3, 2, 17.0))
sketch11.addConstraint(Sketcher.Constraint("DistanceX", -1, 1, 6, 2, 10.0))
sketch11.addConstraint(Sketcher.Constraint("Distance", 5, 20.758629))
sketch11.addConstraint(Sketcher.Constraint("DistanceX", 1, 1, 1, 2, 255.631033))
sketch11.addConstraint(Sketcher.Constraint("DistanceX", -1, 1, 5, 2, 11.900861))
sketch11.setExpression("Constraints[15]", "Params.sketch11_height")
sketch11.setExpression("Constraints[16]", "Params.sketch11_height2")
pad9 = doc.addObject("PartDesign::Pad", "Pad008")
body.addObject(pad9)
pad9.Profile = sketch11
pad9.setExpression("Length", "Params.pad9_length")
pad9.Reversed = True

sketch12 = doc.addObject("Sketcher::SketchObject", "Sketch011")
body.addObject(sketch12)
sketch12.AttachmentSupport = (doc.XY_Plane, [""])
sketch12.MapMode = "FlatFace"
sketch12.addGeometry(Part.Circle(Vector(60, 60, 0), Vector(0, 0, 1), 5), False)
sketch12.addGeometry(Part.Circle(Vector(95, 60, 0), Vector(0, 0, 1), 6), False)
sketch12.addGeometry(Part.Circle(Vector(220, 90, 0), Vector(0, 0, 1), 5), False)
sketch12.addConstraint(Sketcher.Constraint("Equal", 0, 2))
sketch12.addConstraint(Sketcher.Constraint("Horizontal", 0, 3, 1, 3))
sketch12.addConstraint(Sketcher.Constraint("Diameter", 0, 10.0))
sketch12.addConstraint(Sketcher.Constraint("Diameter", 1, 12.0))
sketch12.addConstraint(Sketcher.Constraint("DistanceX", -1, 1, 0, 3, 60.0))
sketch12.addConstraint(Sketcher.Constraint("DistanceY", -1, 1, 0, 3, 60.0))
sketch12.addConstraint(Sketcher.Constraint("DistanceX", -1, 1, 1, 3, 95.0))
sketch12.addConstraint(Sketcher.Constraint("DistanceX", -1, 1, 2, 3, 220.0))
sketch12.addConstraint(Sketcher.Constraint("DistanceY", -1, 1, 2, 3, 90.0))
sketch12.setExpression("Constraints[2]", "Params.sketch12_diameter")
sketch12.setExpression("Constraints[3]", "Params.sketch12_diameter2")
pocket3 = doc.addObject("PartDesign::Pocket", "Pocket002")
body.addObject(pocket3)
pocket3.Profile = sketch12
pocket3.setExpression("Length", "Params.pocket3_length")

sketch13 = doc.addObject("Sketcher::SketchObject", "Sketch012")
body.addObject(sketch13)
sketch13.AttachmentSupport = (doc.XY_Plane, [""])
sketch13.MapMode = "FlatFace"
sketch13.AttachmentOffset = App.Placement(Vector(0, 0, 190), App.Rotation())
sketch13.addGeometry(Part.Circle(Vector(220, 90, 0), Vector(0, 0, 1), 5), False)
sketch13.addConstraint(Sketcher.Constraint("Diameter", 0, 10.0))
sketch13.addConstraint(Sketcher.Constraint("DistanceX", -1, 1, 0, 3, 220.0))
sketch13.addConstraint(Sketcher.Constraint("DistanceY", -1, 1, 0, 3, 90.0))
sketch13.setExpression("Constraints[0]", "Params.sketch13_diameter")
pocket4 = doc.addObject("PartDesign::Pocket", "Pocket003")
body.addObject(pocket4)
pocket4.Profile = sketch13
pocket4.setExpression("Length", "Params.pocket4_length")

sketch14 = doc.addObject("Sketcher::SketchObject", "Sketch013")
body.addObject(sketch14)
sketch14.Placement = App.Placement(Vector(203.845281, -54.620178, 0), App.Rotation(Vector(0, 0, -1), Vector(0.258819045, 0.965925826, 0), Vector(0.965925826, -0.258819045, 0), "ZXY"))
sketch14.addGeometry(Part.Circle(Vector(-105, 174.5, 0), Vector(0, 0, 1), 2), False)
sketch14.addGeometry(Part.Circle(Vector(-75, 174.5, 0), Vector(0, 0, 1), 2), False)
sketch14.addConstraint(Sketcher.Constraint("Equal", 0, 1))
sketch14.addConstraint(Sketcher.Constraint("Horizontal", 0, 3, 1, 3))
sketch14.addConstraint(Sketcher.Constraint("Diameter", 0, 4.0))
sketch14.addConstraint(Sketcher.Constraint("DistanceX", 0, 3, -1, 1, 105.0))
sketch14.addConstraint(Sketcher.Constraint("DistanceX", 1, 3, -1, 1, 75.0))
sketch14.addConstraint(Sketcher.Constraint("DistanceY", -1, 1, 0, 3, 174.455476))
sketch14.setExpression("Constraints[2]", "Params.sketch14_diameter")
pocket5 = doc.addObject("PartDesign::Pocket", "Pocket004")
body.addObject(pocket5)
pocket5.Profile = sketch14
pocket5.setExpression("Length", "Params.pocket5_length")

sketch15 = doc.addObject("Sketcher::SketchObject", "Sketch014")
body.addObject(sketch15)
sketch15.AttachmentSupport = (doc.XY_Plane, [""])
sketch15.MapMode = "FlatFace"
sketch15.addGeometry(Part.Circle(Vector(28, 12.5, 0), Vector(0, 0, 1), 2.5), False)
sketch15.addGeometry(Part.Circle(Vector(78, 12.5, 0), Vector(0, 0, 1), 2.5), False)
sketch15.addGeometry(Part.Circle(Vector(128, 12.5, 0), Vector(0, 0, 1), 2.5), False)
sketch15.addGeometry(Part.Circle(Vector(178, 12.5, 0), Vector(0, 0, 1), 2.5), False)
sketch15.addGeometry(Part.Circle(Vector(228, 12.5, 0), Vector(0, 0, 1), 2.5), False)
sketch15.addConstraint(Sketcher.Constraint("Equal", 0, 1))
sketch15.addConstraint(Sketcher.Constraint("Equal", 1, 2))
sketch15.addConstraint(Sketcher.Constraint("Equal", 2, 3))
sketch15.addConstraint(Sketcher.Constraint("Equal", 3, 4))
sketch15.addConstraint(Sketcher.Constraint("Horizontal", 0, 3, 1, 3))
sketch15.addConstraint(Sketcher.Constraint("Horizontal", 1, 3, 2, 3))
sketch15.addConstraint(Sketcher.Constraint("Horizontal", 2, 3, 3, 3))
sketch15.addConstraint(Sketcher.Constraint("Horizontal", 3, 3, 4, 3))
sketch15.addConstraint(Sketcher.Constraint("Diameter", 0, 5.0))
sketch15.addConstraint(Sketcher.Constraint("DistanceX", -1, 1, 0, 3, 28.0))
sketch15.addConstraint(Sketcher.Constraint("DistanceX", -1, 1, 1, 3, 78.0))
sketch15.addConstraint(Sketcher.Constraint("DistanceX", -1, 1, 2, 3, 128.0))
sketch15.addConstraint(Sketcher.Constraint("DistanceX", -1, 1, 3, 3, 178.0))
sketch15.addConstraint(Sketcher.Constraint("DistanceX", -1, 1, 4, 3, 228.0))
sketch15.addConstraint(Sketcher.Constraint("DistanceY", -1, 1, 0, 3, 12.5))
sketch15.setExpression("Constraints[8]", "Params.sketch15_diameter")
pocket6 = doc.addObject("PartDesign::Pocket", "Pocket005")
body.addObject(pocket6)
pocket6.Profile = sketch15
pocket6.Type = "ThroughAll"
pocket6.Midplane = True

doc.recompute()
